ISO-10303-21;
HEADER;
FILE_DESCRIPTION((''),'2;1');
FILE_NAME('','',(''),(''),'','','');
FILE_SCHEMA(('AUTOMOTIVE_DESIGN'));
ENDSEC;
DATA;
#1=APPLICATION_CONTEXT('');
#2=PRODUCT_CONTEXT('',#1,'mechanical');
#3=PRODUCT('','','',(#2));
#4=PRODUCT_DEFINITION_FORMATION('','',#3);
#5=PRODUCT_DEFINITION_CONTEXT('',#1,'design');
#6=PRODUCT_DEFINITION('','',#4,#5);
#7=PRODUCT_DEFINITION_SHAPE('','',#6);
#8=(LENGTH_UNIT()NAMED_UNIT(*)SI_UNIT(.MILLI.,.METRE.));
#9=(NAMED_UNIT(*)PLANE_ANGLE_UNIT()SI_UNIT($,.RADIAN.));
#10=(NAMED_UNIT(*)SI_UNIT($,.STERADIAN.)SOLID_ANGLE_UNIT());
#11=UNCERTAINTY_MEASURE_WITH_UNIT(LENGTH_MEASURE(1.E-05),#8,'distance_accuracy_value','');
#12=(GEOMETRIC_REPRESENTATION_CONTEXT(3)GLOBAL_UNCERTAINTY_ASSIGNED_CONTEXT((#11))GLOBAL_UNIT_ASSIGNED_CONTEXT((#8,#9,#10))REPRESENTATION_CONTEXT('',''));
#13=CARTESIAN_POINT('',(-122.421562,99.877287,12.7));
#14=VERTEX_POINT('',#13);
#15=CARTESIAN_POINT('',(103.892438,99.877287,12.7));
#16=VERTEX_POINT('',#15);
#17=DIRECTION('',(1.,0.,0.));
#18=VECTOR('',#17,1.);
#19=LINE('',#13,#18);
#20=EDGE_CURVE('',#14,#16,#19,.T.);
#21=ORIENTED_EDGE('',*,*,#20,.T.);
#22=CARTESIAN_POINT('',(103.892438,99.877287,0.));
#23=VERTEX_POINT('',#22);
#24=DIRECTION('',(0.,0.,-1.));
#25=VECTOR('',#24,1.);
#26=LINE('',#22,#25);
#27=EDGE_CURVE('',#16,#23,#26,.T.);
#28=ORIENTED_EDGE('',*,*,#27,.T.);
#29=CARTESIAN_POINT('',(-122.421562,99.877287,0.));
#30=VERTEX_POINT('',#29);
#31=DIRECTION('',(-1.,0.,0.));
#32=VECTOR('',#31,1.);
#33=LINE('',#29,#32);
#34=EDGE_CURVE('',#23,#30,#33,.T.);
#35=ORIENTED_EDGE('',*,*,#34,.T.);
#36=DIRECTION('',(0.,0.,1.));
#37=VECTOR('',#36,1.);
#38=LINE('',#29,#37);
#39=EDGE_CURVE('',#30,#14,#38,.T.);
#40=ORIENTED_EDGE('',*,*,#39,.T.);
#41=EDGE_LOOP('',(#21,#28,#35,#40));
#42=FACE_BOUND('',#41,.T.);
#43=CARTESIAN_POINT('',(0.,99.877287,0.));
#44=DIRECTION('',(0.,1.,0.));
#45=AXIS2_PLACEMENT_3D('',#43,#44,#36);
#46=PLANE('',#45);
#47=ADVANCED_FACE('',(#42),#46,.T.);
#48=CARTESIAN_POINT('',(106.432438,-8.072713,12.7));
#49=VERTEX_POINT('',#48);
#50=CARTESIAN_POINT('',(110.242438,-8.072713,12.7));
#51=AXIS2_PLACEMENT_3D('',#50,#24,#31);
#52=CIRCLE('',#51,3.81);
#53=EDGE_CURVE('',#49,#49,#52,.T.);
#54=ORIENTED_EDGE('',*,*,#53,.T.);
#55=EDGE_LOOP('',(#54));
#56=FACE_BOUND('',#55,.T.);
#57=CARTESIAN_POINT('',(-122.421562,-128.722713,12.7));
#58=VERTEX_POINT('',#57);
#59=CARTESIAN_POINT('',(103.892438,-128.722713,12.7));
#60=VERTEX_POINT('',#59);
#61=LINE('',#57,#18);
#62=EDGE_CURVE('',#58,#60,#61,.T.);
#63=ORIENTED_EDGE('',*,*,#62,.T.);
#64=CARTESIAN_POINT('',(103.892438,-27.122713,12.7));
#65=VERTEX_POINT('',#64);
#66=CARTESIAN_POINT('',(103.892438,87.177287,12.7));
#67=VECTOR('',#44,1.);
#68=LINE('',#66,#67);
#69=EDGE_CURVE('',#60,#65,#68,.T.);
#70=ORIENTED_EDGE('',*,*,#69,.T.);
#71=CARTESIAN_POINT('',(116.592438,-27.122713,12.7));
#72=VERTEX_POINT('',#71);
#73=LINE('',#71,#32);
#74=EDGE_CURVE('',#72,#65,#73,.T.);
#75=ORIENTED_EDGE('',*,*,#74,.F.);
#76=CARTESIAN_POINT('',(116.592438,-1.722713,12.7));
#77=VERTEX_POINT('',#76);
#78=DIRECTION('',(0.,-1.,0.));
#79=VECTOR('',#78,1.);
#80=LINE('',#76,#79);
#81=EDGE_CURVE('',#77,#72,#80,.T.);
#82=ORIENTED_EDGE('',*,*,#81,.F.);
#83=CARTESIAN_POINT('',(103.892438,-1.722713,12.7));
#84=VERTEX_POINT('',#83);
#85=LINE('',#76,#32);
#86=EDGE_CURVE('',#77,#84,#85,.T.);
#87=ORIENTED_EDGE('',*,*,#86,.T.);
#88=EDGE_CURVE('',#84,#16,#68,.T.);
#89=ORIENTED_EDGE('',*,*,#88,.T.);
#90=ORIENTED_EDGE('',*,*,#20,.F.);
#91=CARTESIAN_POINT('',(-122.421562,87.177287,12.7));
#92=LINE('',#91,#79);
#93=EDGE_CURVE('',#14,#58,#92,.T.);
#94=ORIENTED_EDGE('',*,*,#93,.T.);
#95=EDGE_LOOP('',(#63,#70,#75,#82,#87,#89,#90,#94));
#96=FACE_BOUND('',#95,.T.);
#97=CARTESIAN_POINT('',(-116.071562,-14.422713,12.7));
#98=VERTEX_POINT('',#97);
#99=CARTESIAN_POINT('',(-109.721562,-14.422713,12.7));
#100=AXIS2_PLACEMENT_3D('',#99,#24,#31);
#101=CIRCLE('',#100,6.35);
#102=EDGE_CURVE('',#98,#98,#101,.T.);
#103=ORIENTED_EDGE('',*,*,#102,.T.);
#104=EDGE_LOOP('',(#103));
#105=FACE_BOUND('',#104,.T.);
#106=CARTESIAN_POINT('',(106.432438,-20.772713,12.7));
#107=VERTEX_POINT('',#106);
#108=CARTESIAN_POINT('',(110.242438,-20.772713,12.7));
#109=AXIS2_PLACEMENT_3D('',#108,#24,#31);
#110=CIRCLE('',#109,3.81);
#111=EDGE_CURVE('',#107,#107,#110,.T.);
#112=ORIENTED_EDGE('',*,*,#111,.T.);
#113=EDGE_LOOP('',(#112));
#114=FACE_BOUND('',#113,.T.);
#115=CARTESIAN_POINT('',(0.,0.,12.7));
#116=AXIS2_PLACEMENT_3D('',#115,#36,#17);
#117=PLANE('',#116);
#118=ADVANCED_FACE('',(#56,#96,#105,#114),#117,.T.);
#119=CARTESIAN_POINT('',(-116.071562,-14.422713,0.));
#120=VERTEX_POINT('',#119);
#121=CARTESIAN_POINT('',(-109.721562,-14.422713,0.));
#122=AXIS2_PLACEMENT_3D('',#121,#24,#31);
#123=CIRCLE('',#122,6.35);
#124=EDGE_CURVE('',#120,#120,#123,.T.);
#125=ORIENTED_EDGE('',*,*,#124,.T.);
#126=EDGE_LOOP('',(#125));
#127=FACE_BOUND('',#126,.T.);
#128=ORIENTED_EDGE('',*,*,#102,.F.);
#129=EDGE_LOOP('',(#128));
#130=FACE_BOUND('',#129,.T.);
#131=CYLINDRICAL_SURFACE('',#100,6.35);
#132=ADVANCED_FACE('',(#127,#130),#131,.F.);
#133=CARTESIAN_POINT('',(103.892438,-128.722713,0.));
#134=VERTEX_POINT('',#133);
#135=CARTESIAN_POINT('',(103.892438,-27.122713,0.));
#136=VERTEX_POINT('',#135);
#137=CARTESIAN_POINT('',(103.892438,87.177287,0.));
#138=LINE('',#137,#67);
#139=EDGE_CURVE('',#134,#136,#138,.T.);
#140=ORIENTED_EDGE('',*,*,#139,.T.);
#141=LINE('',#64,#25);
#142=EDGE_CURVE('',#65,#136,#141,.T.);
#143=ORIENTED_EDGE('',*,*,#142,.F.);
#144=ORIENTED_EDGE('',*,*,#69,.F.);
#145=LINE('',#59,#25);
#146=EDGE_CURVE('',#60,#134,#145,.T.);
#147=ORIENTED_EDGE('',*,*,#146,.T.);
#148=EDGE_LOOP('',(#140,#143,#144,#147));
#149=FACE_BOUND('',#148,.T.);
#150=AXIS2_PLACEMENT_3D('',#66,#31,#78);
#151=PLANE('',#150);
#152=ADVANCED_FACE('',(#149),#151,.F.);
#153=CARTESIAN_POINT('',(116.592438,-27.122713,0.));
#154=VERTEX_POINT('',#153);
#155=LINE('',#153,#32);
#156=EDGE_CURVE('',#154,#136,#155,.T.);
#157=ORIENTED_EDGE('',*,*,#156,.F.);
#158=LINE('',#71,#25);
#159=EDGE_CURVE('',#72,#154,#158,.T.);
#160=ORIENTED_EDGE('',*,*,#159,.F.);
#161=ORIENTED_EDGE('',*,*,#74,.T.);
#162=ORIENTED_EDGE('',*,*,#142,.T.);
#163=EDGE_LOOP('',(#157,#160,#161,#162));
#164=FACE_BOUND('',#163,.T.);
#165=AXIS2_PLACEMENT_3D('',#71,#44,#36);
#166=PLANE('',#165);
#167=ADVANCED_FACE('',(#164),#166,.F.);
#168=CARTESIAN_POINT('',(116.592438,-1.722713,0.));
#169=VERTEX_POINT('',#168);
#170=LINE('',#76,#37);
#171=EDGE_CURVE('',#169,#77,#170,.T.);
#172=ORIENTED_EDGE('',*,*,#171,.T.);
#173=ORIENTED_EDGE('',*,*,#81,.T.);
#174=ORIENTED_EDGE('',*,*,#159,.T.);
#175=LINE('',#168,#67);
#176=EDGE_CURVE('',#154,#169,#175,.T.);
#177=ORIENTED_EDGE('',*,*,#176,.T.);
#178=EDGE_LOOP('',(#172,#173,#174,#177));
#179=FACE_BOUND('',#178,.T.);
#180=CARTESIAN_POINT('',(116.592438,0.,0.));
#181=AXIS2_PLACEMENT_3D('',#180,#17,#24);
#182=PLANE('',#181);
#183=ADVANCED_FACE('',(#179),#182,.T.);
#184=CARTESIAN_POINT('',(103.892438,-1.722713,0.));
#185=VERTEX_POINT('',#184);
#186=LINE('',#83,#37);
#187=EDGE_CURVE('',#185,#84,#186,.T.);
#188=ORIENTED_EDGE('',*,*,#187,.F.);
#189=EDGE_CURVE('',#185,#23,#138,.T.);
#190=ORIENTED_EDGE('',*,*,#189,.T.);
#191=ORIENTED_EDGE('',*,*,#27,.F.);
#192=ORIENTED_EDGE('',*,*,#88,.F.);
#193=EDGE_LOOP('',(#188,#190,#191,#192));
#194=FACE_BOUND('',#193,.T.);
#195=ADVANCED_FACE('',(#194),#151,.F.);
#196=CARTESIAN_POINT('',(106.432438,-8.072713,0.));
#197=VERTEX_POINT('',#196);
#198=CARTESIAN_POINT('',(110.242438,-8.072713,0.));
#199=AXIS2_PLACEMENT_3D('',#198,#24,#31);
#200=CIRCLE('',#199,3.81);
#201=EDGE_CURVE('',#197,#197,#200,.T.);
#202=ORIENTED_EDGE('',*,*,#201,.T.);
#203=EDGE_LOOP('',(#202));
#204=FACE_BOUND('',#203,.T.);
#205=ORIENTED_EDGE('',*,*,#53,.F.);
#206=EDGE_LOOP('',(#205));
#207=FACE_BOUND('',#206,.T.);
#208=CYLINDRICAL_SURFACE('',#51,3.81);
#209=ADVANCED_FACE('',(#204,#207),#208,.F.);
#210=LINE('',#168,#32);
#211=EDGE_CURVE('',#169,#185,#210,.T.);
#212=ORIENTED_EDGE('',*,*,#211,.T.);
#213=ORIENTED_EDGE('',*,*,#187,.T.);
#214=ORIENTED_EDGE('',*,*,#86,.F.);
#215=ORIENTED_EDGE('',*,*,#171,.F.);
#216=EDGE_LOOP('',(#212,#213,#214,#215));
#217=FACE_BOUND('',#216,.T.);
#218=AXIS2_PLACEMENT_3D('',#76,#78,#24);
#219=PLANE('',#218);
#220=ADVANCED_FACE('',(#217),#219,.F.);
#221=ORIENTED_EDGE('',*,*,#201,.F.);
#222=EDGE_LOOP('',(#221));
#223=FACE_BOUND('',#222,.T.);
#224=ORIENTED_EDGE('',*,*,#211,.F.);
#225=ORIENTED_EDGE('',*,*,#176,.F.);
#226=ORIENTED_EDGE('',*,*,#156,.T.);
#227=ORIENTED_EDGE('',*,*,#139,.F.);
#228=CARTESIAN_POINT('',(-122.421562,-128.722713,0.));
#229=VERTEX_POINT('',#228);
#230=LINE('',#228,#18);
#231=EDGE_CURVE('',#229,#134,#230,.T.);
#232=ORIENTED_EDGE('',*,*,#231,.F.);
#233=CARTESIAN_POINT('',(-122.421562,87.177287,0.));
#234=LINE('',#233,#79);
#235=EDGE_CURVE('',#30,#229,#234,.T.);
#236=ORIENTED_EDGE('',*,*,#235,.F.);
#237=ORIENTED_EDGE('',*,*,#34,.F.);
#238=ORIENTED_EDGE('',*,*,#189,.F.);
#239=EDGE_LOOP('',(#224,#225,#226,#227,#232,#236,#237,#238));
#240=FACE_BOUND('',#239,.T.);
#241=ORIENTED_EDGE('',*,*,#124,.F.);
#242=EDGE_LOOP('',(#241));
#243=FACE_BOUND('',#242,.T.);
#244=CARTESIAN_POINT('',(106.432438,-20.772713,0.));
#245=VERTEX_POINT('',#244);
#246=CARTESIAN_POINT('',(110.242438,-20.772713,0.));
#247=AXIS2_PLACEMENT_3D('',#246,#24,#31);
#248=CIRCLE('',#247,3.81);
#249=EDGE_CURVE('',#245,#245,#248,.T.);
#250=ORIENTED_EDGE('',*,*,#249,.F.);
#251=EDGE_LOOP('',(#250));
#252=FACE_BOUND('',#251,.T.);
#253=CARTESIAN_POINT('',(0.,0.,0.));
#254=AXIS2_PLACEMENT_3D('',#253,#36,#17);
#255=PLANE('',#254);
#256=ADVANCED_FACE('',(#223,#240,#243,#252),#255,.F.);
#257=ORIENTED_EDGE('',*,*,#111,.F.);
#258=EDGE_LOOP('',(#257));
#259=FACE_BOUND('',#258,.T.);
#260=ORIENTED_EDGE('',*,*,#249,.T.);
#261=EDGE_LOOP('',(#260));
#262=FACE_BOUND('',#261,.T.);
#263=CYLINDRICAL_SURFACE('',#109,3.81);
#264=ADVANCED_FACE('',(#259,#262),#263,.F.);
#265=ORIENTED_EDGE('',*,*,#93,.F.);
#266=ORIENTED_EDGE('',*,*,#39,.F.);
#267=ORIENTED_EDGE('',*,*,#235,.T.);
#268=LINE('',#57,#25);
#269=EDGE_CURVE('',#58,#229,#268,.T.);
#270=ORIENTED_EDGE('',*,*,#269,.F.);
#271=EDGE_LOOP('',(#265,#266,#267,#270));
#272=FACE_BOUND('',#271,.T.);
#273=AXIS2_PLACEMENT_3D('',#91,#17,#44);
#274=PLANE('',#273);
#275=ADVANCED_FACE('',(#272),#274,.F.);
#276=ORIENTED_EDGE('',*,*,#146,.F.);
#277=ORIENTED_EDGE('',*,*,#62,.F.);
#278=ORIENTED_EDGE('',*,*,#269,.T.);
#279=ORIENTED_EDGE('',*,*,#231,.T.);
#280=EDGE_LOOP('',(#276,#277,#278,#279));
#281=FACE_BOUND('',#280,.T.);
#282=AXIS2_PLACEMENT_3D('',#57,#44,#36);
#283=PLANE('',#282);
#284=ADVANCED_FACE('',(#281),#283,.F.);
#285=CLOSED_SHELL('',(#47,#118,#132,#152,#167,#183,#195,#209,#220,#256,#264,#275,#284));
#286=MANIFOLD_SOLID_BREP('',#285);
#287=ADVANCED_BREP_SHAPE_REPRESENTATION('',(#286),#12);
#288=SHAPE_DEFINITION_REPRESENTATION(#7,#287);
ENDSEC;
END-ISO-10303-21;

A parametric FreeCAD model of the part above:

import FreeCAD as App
import Part
import Sketcher

V = App.Vector
Q = App.Units.Quantity


def add_polygon(sketch, points):
    """Adds a closed chain of lines whose ends are joined by coincident constraints."""
    first, n = sketch.GeometryCount, len(points)
    for a, b in zip(points, points[1:] + points[:1]):
        sketch.addGeometry(Part.LineSegment(App.Vector(*a, 0), App.Vector(*b, 0)), False)
    for i in range(n):
        sketch.addConstraint(Sketcher.Constraint("Coincident", first + i, 2, first + (i + 1) % n, 1))

doc = App.newDocument("Part")
body = doc.addObject("PartDesign::Body", "Body")

# Sketch on XY plane
sketch1 = body.newObject("Sketcher::SketchObject", "Sketch")
sketch1.AttachmentSupport = (doc.getObject("XY_Plane"), [""])
sketch1.MapMode = "FlatFace"
add_polygon(sketch1, [(-122, 87), (-122, -129), (104, -129), (104, 87)])  # lines 0-3
sketch1.addConstraint(Sketcher.Constraint("Vertical", 0))
sketch1.addConstraint(Sketcher.Constraint("Horizontal", 1))
sketch1.addConstraint(Sketcher.Constraint("Vertical", 2))
sketch1.addConstraint(Sketcher.Constraint("Horizontal", 3))
sketch1.addConstraint(Sketcher.Constraint("DistanceY", 0, 2, 0, 1, Q("8.5 in")))
sketch1.addConstraint(Sketcher.Constraint("DistanceX", 1, 1, 1, 2, Q("8.91 in")))
sketch1.addConstraint(Sketcher.Constraint("DistanceX", 0, 2, -1, 1, 122.421562))
sketch1.addConstraint(Sketcher.Constraint("DistanceY", 0, 2, -1, 1, 128.722713))
pad1 = body.newObject("PartDesign::Pad", "Pad")
pad1.Profile = sketch1
pad1.Length = Q("0.5 in")

# Sketch on YZ plane
sketch2 = body.newObject("Sketcher::SketchObject", "Sketch001")
sketch2.AttachmentSupport = (doc.getObject("YZ_Plane"), [""])
sketch2.MapMode = "FlatFace"
sketch2.AttachmentOffset = App.Placement(V(0, 0, 103.892438), App.Rotation())
add_polygon(sketch2, [(-2, 13), (-27, 13), (-27, 0), (-2, 0)])  # lines 0-3
sketch2.addConstraint(Sketcher.Constraint("Horizontal", 0))
sketch2.addConstraint(Sketcher.Constraint("Vertical", 1))
sketch2.addConstraint(Sketcher.Constraint("Horizontal", 2))
sketch2.addConstraint(Sketcher.Constraint("Vertical", 3))
sketch2.addConstraint(Sketcher.Constraint("PointOnObject", 1, 2, -1))
sketch2.addConstraint(Sketcher.Constraint("DistanceX", 0, 2, 0, 1, Q("1 in")))
sketch2.addConstraint(Sketcher.Constraint("DistanceY", 1, 2, 1, 1, Q("0.5 in")))
sketch2.addConstraint(Sketcher.Constraint("DistanceX", 0, 2, -1, 1, 27.122713))
pad2 = body.newObject("PartDesign::Pad", "Pad001")
pad2.Profile = sketch2
pad2.Length = Q("0.5 in")

# Sketch on XY plane
sketch3 = body.newObject("Sketcher::SketchObject", "Sketch002")
sketch3.AttachmentSupport = (doc.getObject("XY_Plane"), [""])
sketch3.MapMode = "FlatFace"
sketch3.addGeometry(Part.Circle(V(-109.7, -14.4, 0), V(0, 0, 1), 6.3), False)
sketch3.addGeometry(Part.Circle(V(110.2, -8.1, 0), V(0, 0, 1), 3.8), False)
sketch3.addGeometry(Part.Circle(V(110.2, -20.8, 0), V(0, 0, 1), 3.8), False)
sketch3.addConstraint(Sketcher.Constraint("Equal", 1, 2))
sketch3.addConstraint(Sketcher.Constraint("Vertical", 1, 3, 2, 3))
sketch3.addConstraint(Sketcher.Constraint("Diameter", 0, Q("0.5 in")))
sketch3.addConstraint(Sketcher.Constraint("Diameter", 1, Q("0.3 in")))
sketch3.addConstraint(Sketcher.Constraint("DistanceY", 2, 3, 1, 3, Q("0.5 in")))
sketch3.addConstraint(Sketcher.Constraint("DistanceX", 0, 3, 1, 3, Q("8.66 in")))
sketch3.addConstraint(Sketcher.Constraint("DistanceY", 0, 3, 1, 3, Q("0.25 in")))
sketch3.addConstraint(Sketcher.Constraint("DistanceX", 0, 3, -1, 1, 109.721562))
sketch3.addConstraint(Sketcher.Constraint("DistanceY", 0, 3, -1, 1, 14.422713))
pocket1 = body.newObject("PartDesign::Pocket", "Pocket")
pocket1.Profile = sketch3
pocket1.Length = Q("0.5 in")
pocket1.Reversed = True

# Sketch on XZ plane
sketch4 = body.newObject("Sketcher::SketchObject", "Sketch003")
sketch4.AttachmentSupport = (doc.getObject("XZ_Plane"), [""])
sketch4.MapMode = "FlatFace"
sketch4.AttachmentOffset = App.Placement(V(0, 0, -87.177287), App.Rotation())
add_polygon(sketch4, [(-122, 0), (-122, 13), (104, 13), (104, 0)])  # lines 0-3
sketch4.addConstraint(Sketcher.Constraint("Vertical", 0))
sketch4.addConstraint(Sketcher.Constraint("Horizontal", 1))
sketch4.addConstraint(Sketcher.Constraint("Vertical", 2))
sketch4.addConstraint(Sketcher.Constraint("Horizontal", 3))
sketch4.addConstraint(Sketcher.Constraint("PointOnObject", 2, 2, -1))
sketch4.addConstraint(Sketcher.Constraint("DistanceY", 0, 1, 0, 2, Q("0.5 in")))
sketch4.addConstraint(Sketcher.Constraint("DistanceX", 1, 1, 1, 2, Q("8.91 in")))
sketch4.addConstraint(Sketcher.Constraint("DistanceX", 0, 2, -1, 1, 122.421562))
pad3 = body.newObject("PartDesign::Pad", "Pad002")
pad3.Profile = sketch4
pad3.Length = Q("0.5 in")
pad3.Reversed = True

doc.recompute()
